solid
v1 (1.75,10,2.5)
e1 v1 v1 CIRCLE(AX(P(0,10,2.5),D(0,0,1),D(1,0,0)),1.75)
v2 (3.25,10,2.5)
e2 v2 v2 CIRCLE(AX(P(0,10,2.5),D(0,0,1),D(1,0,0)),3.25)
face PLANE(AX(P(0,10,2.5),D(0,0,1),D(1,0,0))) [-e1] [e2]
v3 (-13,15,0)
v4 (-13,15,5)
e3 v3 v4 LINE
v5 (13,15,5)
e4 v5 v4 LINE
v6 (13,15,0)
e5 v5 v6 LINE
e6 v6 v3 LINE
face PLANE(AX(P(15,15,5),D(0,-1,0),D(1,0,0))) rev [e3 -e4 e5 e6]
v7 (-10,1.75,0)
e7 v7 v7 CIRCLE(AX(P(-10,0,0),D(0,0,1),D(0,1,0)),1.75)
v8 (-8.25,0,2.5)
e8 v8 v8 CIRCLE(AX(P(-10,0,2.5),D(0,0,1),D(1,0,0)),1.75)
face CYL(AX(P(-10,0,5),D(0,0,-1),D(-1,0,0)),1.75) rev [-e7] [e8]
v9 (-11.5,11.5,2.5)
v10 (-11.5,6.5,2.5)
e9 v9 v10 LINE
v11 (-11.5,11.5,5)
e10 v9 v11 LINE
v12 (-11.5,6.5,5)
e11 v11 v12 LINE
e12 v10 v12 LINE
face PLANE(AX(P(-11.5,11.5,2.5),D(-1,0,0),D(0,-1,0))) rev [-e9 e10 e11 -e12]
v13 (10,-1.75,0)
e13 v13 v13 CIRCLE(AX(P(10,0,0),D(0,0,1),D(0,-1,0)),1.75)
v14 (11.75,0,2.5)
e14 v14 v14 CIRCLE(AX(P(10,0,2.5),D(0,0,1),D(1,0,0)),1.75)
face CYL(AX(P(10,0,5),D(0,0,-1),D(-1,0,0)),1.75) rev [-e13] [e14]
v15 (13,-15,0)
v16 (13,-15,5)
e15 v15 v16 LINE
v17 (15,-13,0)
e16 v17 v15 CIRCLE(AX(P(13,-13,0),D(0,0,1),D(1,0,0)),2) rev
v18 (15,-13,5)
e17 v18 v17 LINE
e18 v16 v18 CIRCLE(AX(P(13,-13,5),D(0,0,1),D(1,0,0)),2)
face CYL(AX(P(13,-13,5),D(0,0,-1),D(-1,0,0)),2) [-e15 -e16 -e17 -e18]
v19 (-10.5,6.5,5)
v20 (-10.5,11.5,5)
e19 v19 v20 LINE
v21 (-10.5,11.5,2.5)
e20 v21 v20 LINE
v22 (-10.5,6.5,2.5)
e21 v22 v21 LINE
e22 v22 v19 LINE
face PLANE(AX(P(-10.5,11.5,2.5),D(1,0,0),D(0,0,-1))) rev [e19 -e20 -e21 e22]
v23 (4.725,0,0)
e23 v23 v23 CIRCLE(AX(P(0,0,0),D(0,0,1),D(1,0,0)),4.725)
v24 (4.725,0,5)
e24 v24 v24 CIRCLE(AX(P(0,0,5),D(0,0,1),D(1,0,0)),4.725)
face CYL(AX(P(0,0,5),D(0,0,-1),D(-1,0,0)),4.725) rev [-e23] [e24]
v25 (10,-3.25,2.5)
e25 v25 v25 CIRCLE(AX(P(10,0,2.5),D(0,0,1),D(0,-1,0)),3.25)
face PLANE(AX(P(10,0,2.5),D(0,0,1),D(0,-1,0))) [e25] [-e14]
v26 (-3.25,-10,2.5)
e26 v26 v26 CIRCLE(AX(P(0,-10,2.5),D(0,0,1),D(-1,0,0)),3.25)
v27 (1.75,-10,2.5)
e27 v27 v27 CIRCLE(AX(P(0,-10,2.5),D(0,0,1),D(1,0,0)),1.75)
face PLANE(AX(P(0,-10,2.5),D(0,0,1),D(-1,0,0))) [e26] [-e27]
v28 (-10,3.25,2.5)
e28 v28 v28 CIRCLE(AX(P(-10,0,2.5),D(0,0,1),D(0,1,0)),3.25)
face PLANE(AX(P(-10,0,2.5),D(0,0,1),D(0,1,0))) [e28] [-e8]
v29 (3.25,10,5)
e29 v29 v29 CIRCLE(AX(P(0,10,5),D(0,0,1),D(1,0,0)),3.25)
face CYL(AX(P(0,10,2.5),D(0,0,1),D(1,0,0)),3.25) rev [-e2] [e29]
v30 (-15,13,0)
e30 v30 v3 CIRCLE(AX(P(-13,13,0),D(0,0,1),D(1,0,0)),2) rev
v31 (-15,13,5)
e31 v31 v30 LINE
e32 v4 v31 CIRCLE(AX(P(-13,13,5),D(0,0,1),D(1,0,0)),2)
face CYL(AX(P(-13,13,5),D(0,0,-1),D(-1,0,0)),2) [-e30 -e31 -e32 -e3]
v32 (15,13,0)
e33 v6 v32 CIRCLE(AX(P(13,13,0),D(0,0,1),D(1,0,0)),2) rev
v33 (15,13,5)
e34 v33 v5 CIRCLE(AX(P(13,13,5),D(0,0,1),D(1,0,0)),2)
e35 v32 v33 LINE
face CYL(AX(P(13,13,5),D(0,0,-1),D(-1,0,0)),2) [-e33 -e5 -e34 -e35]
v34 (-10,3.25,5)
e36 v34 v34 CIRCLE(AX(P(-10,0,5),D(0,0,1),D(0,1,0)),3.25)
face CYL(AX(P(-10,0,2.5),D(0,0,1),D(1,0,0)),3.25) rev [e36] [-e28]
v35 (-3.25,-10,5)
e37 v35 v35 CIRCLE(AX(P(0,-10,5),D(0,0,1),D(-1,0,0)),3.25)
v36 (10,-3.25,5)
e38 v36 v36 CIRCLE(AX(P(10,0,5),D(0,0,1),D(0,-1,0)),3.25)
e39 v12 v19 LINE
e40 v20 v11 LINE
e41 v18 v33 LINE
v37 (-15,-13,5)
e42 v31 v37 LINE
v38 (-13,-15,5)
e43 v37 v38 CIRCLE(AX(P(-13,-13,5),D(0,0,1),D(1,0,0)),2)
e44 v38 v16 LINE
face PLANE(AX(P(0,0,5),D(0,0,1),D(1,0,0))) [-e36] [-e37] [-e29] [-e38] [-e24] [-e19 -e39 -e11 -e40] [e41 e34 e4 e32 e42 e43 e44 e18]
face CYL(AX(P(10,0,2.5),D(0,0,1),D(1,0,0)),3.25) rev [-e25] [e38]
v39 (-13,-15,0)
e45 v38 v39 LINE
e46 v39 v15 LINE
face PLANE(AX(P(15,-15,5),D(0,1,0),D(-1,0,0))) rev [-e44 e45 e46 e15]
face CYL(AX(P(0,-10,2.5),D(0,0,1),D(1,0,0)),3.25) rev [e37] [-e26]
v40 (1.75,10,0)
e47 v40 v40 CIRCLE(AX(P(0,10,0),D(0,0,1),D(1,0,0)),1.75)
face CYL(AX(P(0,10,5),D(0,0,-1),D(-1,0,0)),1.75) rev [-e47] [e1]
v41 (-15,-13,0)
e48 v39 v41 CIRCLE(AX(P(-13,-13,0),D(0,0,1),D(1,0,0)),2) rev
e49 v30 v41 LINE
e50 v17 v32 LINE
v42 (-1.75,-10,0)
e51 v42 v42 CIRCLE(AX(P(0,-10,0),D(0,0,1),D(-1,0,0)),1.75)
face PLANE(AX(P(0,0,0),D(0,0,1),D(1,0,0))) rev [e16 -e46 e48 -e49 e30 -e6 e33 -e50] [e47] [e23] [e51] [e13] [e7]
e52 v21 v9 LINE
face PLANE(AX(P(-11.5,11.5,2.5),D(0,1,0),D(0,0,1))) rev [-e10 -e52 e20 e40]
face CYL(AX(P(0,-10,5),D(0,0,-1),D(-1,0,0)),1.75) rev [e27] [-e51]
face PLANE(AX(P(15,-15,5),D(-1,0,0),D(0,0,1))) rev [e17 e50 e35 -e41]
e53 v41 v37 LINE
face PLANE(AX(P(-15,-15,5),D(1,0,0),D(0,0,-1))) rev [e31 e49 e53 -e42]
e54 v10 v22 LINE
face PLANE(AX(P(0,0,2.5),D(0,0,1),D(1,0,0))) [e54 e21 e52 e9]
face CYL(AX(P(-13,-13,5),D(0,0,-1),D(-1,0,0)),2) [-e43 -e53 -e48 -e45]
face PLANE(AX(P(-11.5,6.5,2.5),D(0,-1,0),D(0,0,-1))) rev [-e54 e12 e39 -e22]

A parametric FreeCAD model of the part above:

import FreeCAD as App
import Part
import Sketcher

V = App.Vector


def edges_at(feature, points):
    """Names of the edges that pass closest to the given points."""
    edges = feature.Shape.Edges
    near = lambda p: min(range(len(edges)), key=lambda i: edges[i].distToShape(Part.Vertex(*p))[0])
    return sorted({f"Edge{near(p) + 1}" for p in points})

doc = App.newDocument("Part")
body = doc.addObject("PartDesign::Body", "Body")

sketch1 = body.newObject("Sketcher::SketchObject", "Sketch")
sketch1.AttachmentSupport = (doc.getObject("XY_Plane"), [""])
sketch1.MapMode = "FlatFace"
sketch1.addGeometry([
    Part.LineSegment(V(-15, 15, 0), V(-15, -15, 0)),
    Part.LineSegment(V(-15, -15, 0), V(15, -15, 0)),
    Part.LineSegment(V(15, -15, 0), V(15, 15, 0)),
    Part.LineSegment(V(15, 15, 0), V(-15, 15, 0)),
    Part.Circle(V(0, 0, 0), V(0, 0, 1), 4.725),
], False)
sketch1.addConstraint([
    Sketcher.Constraint("Coincident", 0, 2, 1, 1),
    Sketcher.Constraint("Coincident", 1, 2, 2, 1),
    Sketcher.Constraint("Coincident", 2, 2, 3, 1),
    Sketcher.Constraint("Coincident", 3, 2, 0, 1),
    Sketcher.Constraint("Vertical", 0),
    Sketcher.Constraint("Horizontal", 1),
    Sketcher.Constraint("Vertical", 2),
    Sketcher.Constraint("Horizontal", 3),
    Sketcher.Constraint("Coincident", 4, 3, -1, 1),
    Sketcher.Constraint("Symmetric", 0, 2, 2, 2, -1, 1),
    Sketcher.Constraint("Equal", 3, 0),
    Sketcher.Constraint("Diameter", 4, 9.45),
    Sketcher.Constraint("DistanceX", 1, 1, 1, 2, 30.0),
])
pad1 = body.newObject("PartDesign::Pad", "Pad")
pad1.Profile = sketch1
pad1.Length = 5
doc.recompute()

fillet = body.newObject("PartDesign::Fillet", "Fillet")
fillet.Base = (pad1, edges_at(pad1, [
    (-15, 15, 2.5),
    (15, 15, 2.5),
    (15, -15, 2.5),
    (-15, -15, 2.5),
]))
fillet.Radius = 2

sketch2 = body.newObject("Sketcher::SketchObject", "Sketch001")
sketch2.AttachmentSupport = (doc.getObject("XY_Plane"), [""])
sketch2.MapMode = "FlatFace"
sketch2.addGeometry(Part.Circle(V(0, 10, 0), V(0, 0, 1), 1.75), False)
sketch2.addConstraint([
    Sketcher.Constraint("PointOnObject", 0, 3, -2),
    Sketcher.Constraint("Diameter", 0, 3.5),
    Sketcher.Constraint("DistanceY", -1, 1, 0, 3, 10.0),
])
pocket1 = body.newObject("PartDesign::Pocket", "Pocket")
pocket1.Profile = sketch2
pocket1.Length = 45.588989
pocket1.Midplane = True
doc.recompute()

polarpattern = body.newObject("PartDesign::PolarPattern", "PolarPattern")
polarpattern.Originals = [pocket1]
polarpattern.Axis = (doc.getObject("Z_Axis"), [""])
polarpattern.Angle = 360
polarpattern.Occurrences = 4
body.Tip = polarpattern

sketch3 = body.newObject("Sketcher::SketchObject", "Sketch002")
sketch3.AttachmentSupport = (doc.getObject("XY_Plane"), [""])
sketch3.MapMode = "FlatFace"
sketch3.AttachmentOffset = App.Placement(V(0, 0, 5), App.Rotation())
sketch3.addGeometry(Part.Circle(V(0, 10, 0), V(0, 0, 1), 3.25), False)
sketch3.addConstraint([
    Sketcher.Constraint("PointOnObject", 0, 3, -2),
    Sketcher.Constraint("Diameter", 0, 6.5),
    Sketcher.Constraint("DistanceY", -1, 1, 0, 3, 10.0),
])
pocket2 = body.newObject("PartDesign::Pocket", "Pocket001")
pocket2.Profile = sketch3
pocket2.Length = 2.5
doc.recompute()

polarpattern2 = body.newObject("PartDesign::PolarPattern", "PolarPattern001")
polarpattern2.Originals = [pocket2]
polarpattern2.Axis = (doc.getObject("Z_Axis"), [""])
polarpattern2.Angle = 360
polarpattern2.Occurrences = 4
body.Tip = polarpattern2

sketch4 = body.newObject("Sketcher::SketchObject", "Sketch003")
sketch4.AttachmentSupport = (doc.getObject("XY_Plane"), [""])
sketch4.MapMode = "FlatFace"
sketch4.AttachmentOffset = App.Placement(V(0, 0, 5), App.Rotation())
sketch4.addGeometry([
    Part.LineSegment(V(-11.5, 11.5, 0), V(-11.5, 6.5, 0)),
    Part.LineSegment(V(-11.5, 6.5, 0), V(-10.5, 6.5, 0)),
    Part.LineSegment(V(-10.5, 6.5, 0), V(-10.5, 11.5, 0)),
    Part.LineSegment(V(-10.5, 11.5, 0), V(-11.5, 11.5, 0)),
], False)
sketch4.addConstraint([
    Sketcher.Constraint("Coincident", 0, 2, 1, 1),
    Sketcher.Constraint("Coincident", 1, 2, 2, 1),
    Sketcher.Constraint("Coincident", 2, 2, 3, 1),
    Sketcher.Constraint("Coincident", 3, 2, 0, 1),
    Sketcher.Constraint("Vertical", 0),
    Sketcher.Constraint("Horizontal", 1),
    Sketcher.Constraint("Vertical", 2),
    Sketcher.Constraint("Horizontal", 3),
    Sketcher.Constraint("DistanceX", 1, 1, 1, 2, 1.0),
    Sketcher.Constraint("DistanceY", 0, 2, 0, 1, 5.0),
    Sketcher.Constraint("DistanceX", 0, 2, -1, 1, 11.5),
    Sketcher.Constraint("DistanceY", -1, 1, 0, 2, 6.5),
])
pocket3 = body.newObject("PartDesign::Pocket", "Pocket002")
pocket3.Profile = sketch4
pocket3.Length = 2.5

doc.recompute()
